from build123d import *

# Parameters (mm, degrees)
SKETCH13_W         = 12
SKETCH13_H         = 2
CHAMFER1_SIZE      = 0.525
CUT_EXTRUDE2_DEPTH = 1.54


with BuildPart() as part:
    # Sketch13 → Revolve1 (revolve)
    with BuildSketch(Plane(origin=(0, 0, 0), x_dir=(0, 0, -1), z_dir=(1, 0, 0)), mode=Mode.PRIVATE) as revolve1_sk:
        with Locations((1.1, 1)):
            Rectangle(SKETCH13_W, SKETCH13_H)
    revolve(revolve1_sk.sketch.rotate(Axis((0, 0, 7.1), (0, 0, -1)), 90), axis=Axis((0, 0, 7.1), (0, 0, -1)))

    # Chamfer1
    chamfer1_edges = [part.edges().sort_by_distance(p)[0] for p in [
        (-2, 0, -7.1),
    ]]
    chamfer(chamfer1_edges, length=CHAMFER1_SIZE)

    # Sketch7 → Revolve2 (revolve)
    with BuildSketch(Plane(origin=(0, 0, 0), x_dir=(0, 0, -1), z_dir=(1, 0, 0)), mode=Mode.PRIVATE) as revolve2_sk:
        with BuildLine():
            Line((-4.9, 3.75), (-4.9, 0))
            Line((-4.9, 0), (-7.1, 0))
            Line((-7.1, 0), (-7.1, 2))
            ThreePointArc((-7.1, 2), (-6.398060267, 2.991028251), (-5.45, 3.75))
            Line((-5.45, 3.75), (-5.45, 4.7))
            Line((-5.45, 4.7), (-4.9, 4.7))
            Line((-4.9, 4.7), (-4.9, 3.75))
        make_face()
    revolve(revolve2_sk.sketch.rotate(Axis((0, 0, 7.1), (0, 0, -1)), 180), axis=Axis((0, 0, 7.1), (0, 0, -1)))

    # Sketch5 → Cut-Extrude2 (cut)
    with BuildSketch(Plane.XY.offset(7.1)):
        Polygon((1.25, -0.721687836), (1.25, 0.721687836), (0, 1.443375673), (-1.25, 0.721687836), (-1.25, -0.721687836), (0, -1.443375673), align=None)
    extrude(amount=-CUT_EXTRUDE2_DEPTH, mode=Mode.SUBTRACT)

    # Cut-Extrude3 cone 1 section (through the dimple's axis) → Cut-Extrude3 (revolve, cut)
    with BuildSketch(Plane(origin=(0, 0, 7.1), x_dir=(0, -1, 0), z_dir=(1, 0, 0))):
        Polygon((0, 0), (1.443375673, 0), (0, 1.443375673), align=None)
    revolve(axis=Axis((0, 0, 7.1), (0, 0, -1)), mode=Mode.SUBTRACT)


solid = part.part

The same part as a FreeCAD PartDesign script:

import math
import FreeCAD as App
import Part
import Sketcher
from FreeCAD import Vector
Q = App.Units.Quantity


def edges_at(feature, points):
    """Names of the edges that pass closest to the given points."""
    edges = feature.Shape.Edges
    near = lambda p: min(range(len(edges)), key=lambda i: edges[i].distToShape(Part.Vertex(*p))[0])
    return sorted({f"Edge{near(p) + 1}" for p in points})


def add_polygon(sketch, points):
    """Adds a closed chain of lines whose ends are joined by coincident constraints."""
    first, n = sketch.GeometryCount, len(points)
    for a, b in zip(points, points[1:] + points[:1]):
        sketch.addGeometry(Part.LineSegment(App.Vector(*a, 0), App.Vector(*b, 0)), False)
    for i in range(n):
        sketch.addConstraint(Sketcher.Constraint("Coincident", first + i, 2, first + (i + 1) % n, 1))

doc = App.newDocument("Part")
params = doc.addObject("Spreadsheet::Sheet", "Params")
for row, (alias, value) in enumerate([
    ("sketch1_width", "2 mm"),
    ("sketch1_height", "12 mm"),
    ("revolution_angle", "360 deg"),
    ("chamfer_size", "0.525 mm"),
    ("sketch2_width", "2 mm"),
    ("sketch2_width2", "4.7 mm"),
    ("sketch2_height", "2.2 mm"),
    ("sketch2_width3", "0.95 mm"),
    ("sketch2_height2", "0.55 mm"),
    ("revolution2_angle", "360 deg"),
    ("pocket1_length", "1.54 mm"),
    ("groove_angle", "360 deg"),
], start=1):
    params.set(f"A{row}", alias)
    params.set(f"B{row}", "=" + value)
    params.setAlias(f"B{row}", alias)

body = doc.addObject("PartDesign::Body", "Body")

# Sketch on YZ plane
sketch1 = body.newObject("Sketcher::SketchObject", "Sketch")
sketch1.AttachmentSupport = (doc.getObject("YZ_Plane"), [""])
sketch1.MapMode = "FlatFace"
add_polygon(sketch1, [(2, 4.9), (0, 4.9), (0, -7.1), (2, -7.1)])  # lines 0-3
sketch1.addConstraint([
    Sketcher.Constraint("Horizontal", 0),
    Sketcher.Constraint("Vertical", 1),
    Sketcher.Constraint("Horizontal", 2),
    Sketcher.Constraint("Vertical", 3),
    Sketcher.Constraint("PointOnObject", 0, 2, -2),
    Sketcher.Constraint("DistanceX", 0, 2, 0, 1, Q("2 mm")),
    Sketcher.Constraint("DistanceY", 1, 2, 1, 1, Q("12 mm")),
    Sketcher.Constraint("DistanceY", -1, 1, 0, 2, Q("4.9 mm")),
])
sketch1.setExpression("Constraints[9]", "Params.sketch1_width")
sketch1.setExpression("Constraints[10]", "Params.sketch1_height")
revolution = body.newObject("PartDesign::Revolution", "Revolution")
revolution.Profile = sketch1
revolution.ReferenceAxis = (sketch1, ["V_Axis"])
revolution.setExpression("Angle", "Params.revolution_angle")
doc.recompute()

chamfer = body.newObject("PartDesign::Chamfer", "Chamfer")
chamfer.Base = (revolution, edges_at(revolution, [(-2, 0, -7.1)]))
chamfer.setExpression("Size", "Params.chamfer_size")

# Sketch on YZ plane
sketch2 = body.newObject("Sketcher::SketchObject", "Sketch001")
sketch2.AttachmentSupport = (doc.getObject("YZ_Plane"), [""])
sketch2.MapMode = "FlatFace"
sketch2.addGeometry([
    Part.LineSegment(Vector(0, 7.1, 0), Vector(0, 4.9, 0)),  # 0
    Part.LineSegment(Vector(0, 4.9, 0), Vector(4.7, 4.9, 0)),  # 1
    Part.LineSegment(Vector(4.7, 4.9, 0), Vector(4.7, 5.45, 0)),  # 2
    Part.LineSegment(Vector(4.7, 5.45, 0), Vector(3.75, 5.45, 0)),  # 3
    Part.ArcOfCircle(Part.Circle(Vector(0, 3.225758, 0), Vector(0, 0, 1), 4.360018), math.radians(30.673507), math.radians(62.695862)),  # 4
    Part.LineSegment(Vector(2, 7.1, 0), Vector(0, 7.1, 0)),  # 5
], False)
sketch2.addConstraint([
    Sketcher.Constraint("Coincident", 0, 2, 1, 1),
    Sketcher.Constraint("Coincident", 1, 2, 2, 1),
    Sketcher.Constraint("Coincident", 2, 2, 3, 1),
    Sketcher.Constraint("Coincident", 3, 2, 4, 1),
    Sketcher.Constraint("Coincident", 4, 2, 5, 1),
    Sketcher.Constraint("Coincident", 5, 2, 0, 1),
    Sketcher.Constraint("Vertical", 0),
    Sketcher.Constraint("Horizontal", 1),
    Sketcher.Constraint("Vertical", 2),
    Sketcher.Constraint("Horizontal", 3),
    Sketcher.Constraint("Horizontal", 5),
    Sketcher.Constraint("PointOnObject", 4, 3, -2),
    Sketcher.Constraint("PointOnObject", 0, 2, -2),
    Sketcher.Constraint("DistanceX", 5, 2, 5, 1, Q("2 mm")),
    Sketcher.Constraint("DistanceX", 1, 1, 1, 2, Q("4.7 mm")),
    Sketcher.Constraint("DistanceY", 0, 2, 0, 1, Q("2.2 mm")),
    Sketcher.Constraint("DistanceX", 3, 2, 3, 1, Q("0.95 mm")),
    Sketcher.Constraint("DistanceY", 2, 1, 2, 2, Q("0.55 mm")),
    Sketcher.Constraint("DistanceY", -1, 1, 0, 2, Q("4.9 mm")),
])
sketch2.setExpression("Constraints[13]", "Params.sketch2_width")
sketch2.setExpression("Constraints[14]", "Params.sketch2_width2")
sketch2.setExpression("Constraints[15]", "Params.sketch2_height")
sketch2.setExpression("Constraints[16]", "Params.sketch2_width3")
sketch2.setExpression("Constraints[17]", "Params.sketch2_height2")
revolution2 = body.newObject("PartDesign::Revolution", "Revolution001")
revolution2.Profile = sketch2
revolution2.ReferenceAxis = (sketch2, ["V_Axis"])
revolution2.setExpression("Angle", "Params.revolution2_angle")

# Sketch on XY plane
sketch3 = body.newObject("Sketcher::SketchObject", "Sketch002")
sketch3.AttachmentSupport = (doc.getObject("XY_Plane"), [""])
sketch3.MapMode = "FlatFace"
sketch3.AttachmentOffset = App.Placement(Vector(0, 0, 7.1), App.Rotation())
add_polygon(sketch3, [(1.25, -0.721688), (1.25, 0.721688), (0, 1.443376), (-1.25, 0.721688), (-1.25, -0.721688), (0, -1.443376)])  # lines 0-5
sketch3.addConstraint([
    Sketcher.Constraint("Vertical", 0),
    Sketcher.Constraint("Vertical", 3),
    Sketcher.Constraint("Symmetric", 0, 2, 3, 2, -1, 1),
    Sketcher.Constraint("Symmetric", 1, 2, 4, 2, -1, 1),
    Sketcher.Constraint("PointOnObject", 1, 2, -2),
    Sketcher.Constraint("Parallel", 2, 5),
    Sketcher.Constraint("Horizontal", 0, 2, 2, 2),
    Sketcher.Constraint("Angle", 1, Q("150 deg")),
    Sketcher.Constraint("DistanceX", 2, 2, 0, 2, Q("2.5 mm")),
    Sketcher.Constraint("DistanceY", 0, 1, 0, 2, Q("1.443376 mm")),
])
pocket1 = body.newObject("PartDesign::Pocket", "Pocket")
pocket1.Profile = sketch3
pocket1.setExpression("Length", "Params.pocket1_length")

# Sketch on YZ plane
sketch4 = body.newObject("Sketcher::SketchObject", "Sketch003")
sketch4.AttachmentSupport = (doc.getObject("YZ_Plane"), [""])
sketch4.MapMode = "FlatFace"
add_polygon(sketch4, [(0, 7.1), (-1.443376, 7.1), (0, 5.656624)])  # lines 0-2
sketch4.addConstraint([
    Sketcher.Constraint("Horizontal", 0),
    Sketcher.Constraint("Vertical", 2),
    Sketcher.Constraint("PointOnObject", 1, 2, -2),
    Sketcher.Constraint("Equal", 0, 2),
    Sketcher.Constraint("DistanceY", -1, 1, 0, 2, Q("7.1 mm")),
    Sketcher.Constraint("Distance", 1, Q("2.041241 mm")),
])
groove = body.newObject("PartDesign::Groove", "Groove")
groove.Profile = sketch4
groove.ReferenceAxis = (sketch4, ["V_Axis"])
groove.setExpression("Angle", "Params.groove_angle")

doc.recompute()
